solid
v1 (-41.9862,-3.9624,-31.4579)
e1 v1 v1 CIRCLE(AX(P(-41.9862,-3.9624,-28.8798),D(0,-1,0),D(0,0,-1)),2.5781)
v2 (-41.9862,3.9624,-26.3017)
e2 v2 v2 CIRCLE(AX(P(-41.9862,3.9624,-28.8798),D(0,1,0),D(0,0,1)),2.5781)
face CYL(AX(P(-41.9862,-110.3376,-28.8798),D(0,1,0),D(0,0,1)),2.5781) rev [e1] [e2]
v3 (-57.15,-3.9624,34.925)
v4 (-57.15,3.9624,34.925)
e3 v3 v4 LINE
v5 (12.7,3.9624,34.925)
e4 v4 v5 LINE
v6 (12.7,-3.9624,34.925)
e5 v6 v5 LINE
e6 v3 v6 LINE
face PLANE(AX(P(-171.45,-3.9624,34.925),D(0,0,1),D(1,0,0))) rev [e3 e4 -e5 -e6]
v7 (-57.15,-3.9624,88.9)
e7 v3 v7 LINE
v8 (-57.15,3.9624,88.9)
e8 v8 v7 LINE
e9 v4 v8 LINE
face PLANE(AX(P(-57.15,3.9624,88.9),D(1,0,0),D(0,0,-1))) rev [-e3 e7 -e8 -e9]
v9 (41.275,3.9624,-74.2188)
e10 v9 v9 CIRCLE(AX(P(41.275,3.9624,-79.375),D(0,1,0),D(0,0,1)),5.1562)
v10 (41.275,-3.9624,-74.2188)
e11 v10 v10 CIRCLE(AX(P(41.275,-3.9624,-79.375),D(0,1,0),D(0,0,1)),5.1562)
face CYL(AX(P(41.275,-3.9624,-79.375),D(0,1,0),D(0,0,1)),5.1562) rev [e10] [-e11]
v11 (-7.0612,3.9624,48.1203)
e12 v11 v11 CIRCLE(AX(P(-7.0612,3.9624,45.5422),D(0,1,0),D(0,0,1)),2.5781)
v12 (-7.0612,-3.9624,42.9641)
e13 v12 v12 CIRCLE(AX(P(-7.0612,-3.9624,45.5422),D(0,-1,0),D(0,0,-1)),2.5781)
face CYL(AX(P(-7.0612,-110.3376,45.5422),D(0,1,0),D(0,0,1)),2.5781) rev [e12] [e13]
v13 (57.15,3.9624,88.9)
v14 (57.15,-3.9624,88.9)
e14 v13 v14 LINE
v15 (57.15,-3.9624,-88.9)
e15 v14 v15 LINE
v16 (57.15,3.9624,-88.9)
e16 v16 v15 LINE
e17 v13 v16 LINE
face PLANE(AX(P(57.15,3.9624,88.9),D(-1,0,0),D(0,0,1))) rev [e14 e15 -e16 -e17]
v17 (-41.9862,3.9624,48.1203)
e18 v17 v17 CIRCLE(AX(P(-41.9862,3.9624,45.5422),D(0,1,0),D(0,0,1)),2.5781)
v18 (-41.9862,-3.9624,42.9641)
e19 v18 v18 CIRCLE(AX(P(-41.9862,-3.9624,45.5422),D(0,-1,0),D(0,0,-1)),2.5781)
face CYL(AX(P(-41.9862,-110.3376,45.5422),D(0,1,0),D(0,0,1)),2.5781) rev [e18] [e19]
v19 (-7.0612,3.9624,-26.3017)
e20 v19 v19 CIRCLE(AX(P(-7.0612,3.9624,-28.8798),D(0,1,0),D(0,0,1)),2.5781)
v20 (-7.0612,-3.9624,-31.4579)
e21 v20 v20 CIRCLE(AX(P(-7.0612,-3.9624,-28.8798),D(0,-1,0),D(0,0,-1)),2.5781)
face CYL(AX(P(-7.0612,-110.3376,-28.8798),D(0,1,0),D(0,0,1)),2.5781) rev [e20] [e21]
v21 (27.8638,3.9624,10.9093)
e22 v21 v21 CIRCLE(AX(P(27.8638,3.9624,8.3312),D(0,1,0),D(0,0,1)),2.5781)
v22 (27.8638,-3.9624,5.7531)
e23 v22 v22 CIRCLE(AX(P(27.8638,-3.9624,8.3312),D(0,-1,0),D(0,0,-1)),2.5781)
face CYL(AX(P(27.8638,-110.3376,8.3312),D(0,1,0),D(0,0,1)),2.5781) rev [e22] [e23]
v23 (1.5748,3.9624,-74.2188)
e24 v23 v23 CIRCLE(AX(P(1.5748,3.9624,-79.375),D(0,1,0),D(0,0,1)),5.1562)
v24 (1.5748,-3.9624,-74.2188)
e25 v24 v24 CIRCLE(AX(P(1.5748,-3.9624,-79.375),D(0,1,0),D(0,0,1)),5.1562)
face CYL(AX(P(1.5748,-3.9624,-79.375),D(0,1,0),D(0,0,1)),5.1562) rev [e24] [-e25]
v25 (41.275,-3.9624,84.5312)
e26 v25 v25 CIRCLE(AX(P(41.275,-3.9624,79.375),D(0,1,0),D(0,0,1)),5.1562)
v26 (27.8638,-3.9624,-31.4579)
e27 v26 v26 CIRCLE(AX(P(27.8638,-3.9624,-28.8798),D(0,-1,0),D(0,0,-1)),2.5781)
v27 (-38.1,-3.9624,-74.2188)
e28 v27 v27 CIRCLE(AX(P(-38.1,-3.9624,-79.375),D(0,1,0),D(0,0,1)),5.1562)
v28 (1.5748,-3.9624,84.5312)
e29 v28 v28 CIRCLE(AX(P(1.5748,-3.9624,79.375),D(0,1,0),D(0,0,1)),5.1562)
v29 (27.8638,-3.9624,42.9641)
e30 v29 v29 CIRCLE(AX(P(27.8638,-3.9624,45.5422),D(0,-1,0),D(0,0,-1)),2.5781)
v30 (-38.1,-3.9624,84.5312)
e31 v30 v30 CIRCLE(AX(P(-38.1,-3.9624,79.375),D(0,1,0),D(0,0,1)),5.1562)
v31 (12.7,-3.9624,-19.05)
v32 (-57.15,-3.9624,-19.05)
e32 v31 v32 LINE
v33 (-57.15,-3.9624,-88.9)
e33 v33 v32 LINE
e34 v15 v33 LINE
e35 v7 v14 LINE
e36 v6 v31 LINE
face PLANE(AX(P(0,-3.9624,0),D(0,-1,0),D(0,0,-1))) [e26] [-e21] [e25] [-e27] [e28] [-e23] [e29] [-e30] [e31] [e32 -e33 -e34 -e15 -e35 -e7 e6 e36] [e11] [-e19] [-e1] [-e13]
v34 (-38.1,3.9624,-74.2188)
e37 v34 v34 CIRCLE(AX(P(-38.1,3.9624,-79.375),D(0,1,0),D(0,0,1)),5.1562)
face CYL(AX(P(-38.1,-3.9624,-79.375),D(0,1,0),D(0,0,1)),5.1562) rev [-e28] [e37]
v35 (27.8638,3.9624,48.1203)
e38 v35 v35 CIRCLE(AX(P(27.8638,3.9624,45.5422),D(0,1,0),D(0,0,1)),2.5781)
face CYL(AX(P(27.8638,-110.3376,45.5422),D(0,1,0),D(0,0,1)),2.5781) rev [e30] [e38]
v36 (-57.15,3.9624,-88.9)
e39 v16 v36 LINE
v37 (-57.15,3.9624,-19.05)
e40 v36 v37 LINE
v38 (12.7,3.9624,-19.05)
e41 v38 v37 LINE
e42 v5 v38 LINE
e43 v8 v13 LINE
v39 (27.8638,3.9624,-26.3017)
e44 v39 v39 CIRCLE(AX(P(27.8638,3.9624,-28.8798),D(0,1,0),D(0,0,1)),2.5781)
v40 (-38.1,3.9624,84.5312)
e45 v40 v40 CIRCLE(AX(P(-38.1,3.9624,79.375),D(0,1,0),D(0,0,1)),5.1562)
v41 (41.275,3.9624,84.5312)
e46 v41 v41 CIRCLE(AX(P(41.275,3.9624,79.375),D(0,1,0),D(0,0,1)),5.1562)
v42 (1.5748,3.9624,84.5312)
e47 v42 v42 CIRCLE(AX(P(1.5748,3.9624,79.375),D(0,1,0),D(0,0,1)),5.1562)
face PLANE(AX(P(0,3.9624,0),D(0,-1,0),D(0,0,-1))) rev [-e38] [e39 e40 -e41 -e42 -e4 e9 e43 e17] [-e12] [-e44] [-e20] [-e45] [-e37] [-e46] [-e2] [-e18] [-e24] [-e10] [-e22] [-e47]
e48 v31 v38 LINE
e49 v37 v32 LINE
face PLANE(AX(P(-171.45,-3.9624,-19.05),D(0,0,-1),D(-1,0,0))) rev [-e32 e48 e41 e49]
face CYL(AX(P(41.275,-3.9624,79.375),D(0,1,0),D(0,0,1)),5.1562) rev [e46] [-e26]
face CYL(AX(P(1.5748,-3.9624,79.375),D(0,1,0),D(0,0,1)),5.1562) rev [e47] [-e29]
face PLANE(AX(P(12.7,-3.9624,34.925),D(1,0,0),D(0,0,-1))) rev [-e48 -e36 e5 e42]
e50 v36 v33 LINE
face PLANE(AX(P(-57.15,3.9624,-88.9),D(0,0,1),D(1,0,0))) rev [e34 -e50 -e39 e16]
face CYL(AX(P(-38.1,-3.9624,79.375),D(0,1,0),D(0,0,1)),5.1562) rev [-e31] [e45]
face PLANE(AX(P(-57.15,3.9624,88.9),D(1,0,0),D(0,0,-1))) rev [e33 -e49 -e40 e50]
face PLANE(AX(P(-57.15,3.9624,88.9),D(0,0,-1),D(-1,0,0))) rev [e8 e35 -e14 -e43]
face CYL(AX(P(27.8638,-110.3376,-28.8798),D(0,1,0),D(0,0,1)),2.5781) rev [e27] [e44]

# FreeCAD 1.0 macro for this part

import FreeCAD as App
import Part
import Sketcher
Q = App.Units.Quantity

doc = App.newDocument("Part")
params = doc.addObject("Spreadsheet::Sheet", "Params")
for row, (alias, value) in enumerate([
    ("sketch1_height", "7 in"),
    ("sketch1_width", "4.5 in"),
    ("pad1_length", "0.312 in"),
    ("sketch2_width", "7.25 in"),
    ("sketch2_height", "2.125 in"),
    ("sketch3_diameter", "0.406 in"),
    ("sketch4_diameter", "0.406 in"),
    ("sketch5_diameter", "0.406 in"),
    ("sketch6_diameter", "0.203 in"),
    ("pocket5_length", "4.5 in"),
    ("sketch7_diameter", "0.203 in"),
    ("pocket6_length", "4.5 in"),
], start=1):
    params.set(f"A{row}", alias)
    params.set(f"B{row}", "=" + value)
    params.setAlias(f"B{row}", alias)

body = doc.addObject("PartDesign::Body", "Body")

# Sketch on XZ plane
sketch1 = doc.addObject("Sketcher::SketchObject", "Sketch")
body.addObject(sketch1)
sketch1.AttachmentSupport = (doc.XZ_Plane, [""])
sketch1.MapMode = "FlatFace"
sketch1.addGeometry([
    Part.LineSegment(App.Vector(-57.15, -88.9, 0), App.Vector(-57.15, 88.9, 0)),
    Part.LineSegment(App.Vector(-57.15, 88.9, 0), App.Vector(57.15, 88.9, 0)),
    Part.LineSegment(App.Vector(57.15, 88.9, 0), App.Vector(57.15, -88.9, 0)),
    Part.LineSegment(App.Vector(57.15, -88.9, 0), App.Vector(-57.15, -88.9, 0)),
], False)
sketch1.addConstraint([
    Sketcher.Constraint("Coincident", 0, 2, 1, 1),
    Sketcher.Constraint("Coincident", 1, 2, 2, 1),
    Sketcher.Constraint("Coincident", 2, 2, 3, 1),
    Sketcher.Constraint("Coincident", 3, 2, 0, 1),
    Sketcher.Constraint("Vertical", 0),
    Sketcher.Constraint("Horizontal", 1),
    Sketcher.Constraint("Vertical", 2),
    Sketcher.Constraint("Horizontal", 3),
    Sketcher.Constraint("Symmetric", 0, 2, 2, 2, -1, 1),
    Sketcher.Constraint("DistanceY", 0, 1, 0, 2, Q("7 in")),
    Sketcher.Constraint("DistanceX", 1, 1, 1, 2, Q("4.5 in")),
])
sketch1.setExpression("Constraints[9]", "Params.sketch1_height")
sketch1.setExpression("Constraints[10]", "Params.sketch1_width")
pad1 = doc.addObject("PartDesign::Pad", "Pad")
body.addObject(pad1)
pad1.Profile = sketch1
pad1.setExpression("Length", "Params.pad1_length")
pad1.Midplane = True

# Sketch on XZ plane
sketch2 = doc.addObject("Sketcher::SketchObject", "Sketch001")
body.addObject(sketch2)
sketch2.AttachmentSupport = (doc.XZ_Plane, [""])
sketch2.MapMode = "FlatFace"
sketch2.AttachmentOffset = App.Placement(App.Vector(0, 0, -0.156 * 25.4), App.Rotation())
sketch2.addGeometry([
    Part.LineSegment(App.Vector(-171.45, -19.05, 0), App.Vector(-171.45, 34.925, 0)),
    Part.LineSegment(App.Vector(-171.45, 34.925, 0), App.Vector(12.7, 34.925, 0)),
    Part.LineSegment(App.Vector(12.7, 34.925, 0), App.Vector(12.7, -19.05, 0)),
    Part.LineSegment(App.Vector(12.7, -19.05, 0), App.Vector(-171.45, -19.05, 0)),
], False)
sketch2.addConstraint([
    Sketcher.Constraint("Coincident", 0, 2, 1, 1),
    Sketcher.Constraint("Coincident", 1, 2, 2, 1),
    Sketcher.Constraint("Coincident", 2, 2, 3, 1),
    Sketcher.Constraint("Coincident", 3, 2, 0, 1),
    Sketcher.Constraint("Vertical", 0),
    Sketcher.Constraint("Horizontal", 1),
    Sketcher.Constraint("Vertical", 2),
    Sketcher.Constraint("Horizontal", 3),
    Sketcher.Constraint("DistanceX", 1, 1, 1, 2, Q("7.25 in")),
    Sketcher.Constraint("DistanceX", -1, 1, 1, 2, Q("0.5 in")),
    Sketcher.Constraint("DistanceY", 0, 1, 0, 2, Q("2.125 in")),
    Sketcher.Constraint("DistanceY", 2, 2, -1, 1, Q("0.75 in")),
])
sketch2.setExpression("Constraints[8]", "Params.sketch2_width")
sketch2.setExpression("Constraints[10]", "Params.sketch2_height")
pocket1 = doc.addObject("PartDesign::Pocket", "Pocket")
body.addObject(pocket1)
pocket1.Profile = sketch2
pocket1.Type = "ThroughAll"
pocket1.Reversed = True

# Sketch on XZ plane
sketch3 = doc.addObject("Sketcher::SketchObject", "Sketch002")
body.addObject(sketch3)
sketch3.AttachmentSupport = (doc.XZ_Plane, [""])
sketch3.MapMode = "FlatFace"
sketch3.AttachmentOffset = App.Placement(App.Vector(0, 0, -0.156 * 25.4), App.Rotation())
sketch3.addGeometry([
    Part.Circle(App.Vector(-38.1, 79.375, 0), App.Vector(0, 0, 1), 5.1562),
    Part.Circle(App.Vector(-38.1, -79.375, 0), App.Vector(0, 0, 1), 5.1562),
], False)
sketch3.addConstraint([
    Sketcher.Constraint("Equal", 0, 1),
    Sketcher.Constraint("Symmetric", 0, 3, 1, 3, -1),
    Sketcher.Constraint("Diameter", 0, Q("0.406 in")),
    Sketcher.Constraint("DistanceX", 0, 3, -1, 1, Q("1.5 in")),
    Sketcher.Constraint("DistanceY", 1, 3, 0, 3, Q("6.25 in")),
])
sketch3.setExpression("Constraints[2]", "Params.sketch3_diameter")
pocket2 = doc.addObject("PartDesign::Pocket", "Pocket001")
body.addObject(pocket2)
pocket2.Profile = sketch3
pocket2.Type = "ThroughAll"
pocket2.Reversed = True

# Sketch on XZ plane
sketch4 = doc.addObject("Sketcher::SketchObject", "Sketch003")
body.addObject(sketch4)
sketch4.AttachmentSupport = (doc.XZ_Plane, [""])
sketch4.MapMode = "FlatFace"
sketch4.AttachmentOffset = App.Placement(App.Vector(0, 0, -0.156 * 25.4), App.Rotation())
sketch4.addGeometry([
    Part.Circle(App.Vector(1.5748, 79.375, 0), App.Vector(0, 0, 1), 5.1562),
    Part.Circle(App.Vector(1.5748, -79.375, 0), App.Vector(0, 0, 1), 5.1562),
], False)
sketch4.addConstraint([
    Sketcher.Constraint("Equal", 0, 1),
    Sketcher.Constraint("Symmetric", 0, 3, 1, 3, -1),
    Sketcher.Constraint("Diameter", 0, Q("0.406 in")),
    Sketcher.Constraint("DistanceY", 1, 3, 0, 3, Q("6.25 in")),
    Sketcher.Constraint("DistanceX", -1, 1, 0, 3, Q("0.062 in")),
])
sketch4.setExpression("Constraints[2]", "Params.sketch4_diameter")
pocket3 = doc.addObject("PartDesign::Pocket", "Pocket002")
body.addObject(pocket3)
pocket3.Profile = sketch4
pocket3.Type = "ThroughAll"
pocket3.Reversed = True

# Sketch on XZ plane
sketch5 = doc.addObject("Sketcher::SketchObject", "Sketch004")
body.addObject(sketch5)
sketch5.AttachmentSupport = (doc.XZ_Plane, [""])
sketch5.MapMode = "FlatFace"
sketch5.AttachmentOffset = App.Placement(App.Vector(0, 0, -0.156 * 25.4), App.Rotation())
sketch5.addGeometry([
    Part.Circle(App.Vector(41.275, 79.375, 0), App.Vector(0, 0, 1), 5.1562),
    Part.Circle(App.Vector(41.275, -79.375, 0), App.Vector(0, 0, 1), 5.1562),
], False)
sketch5.addConstraint([
    Sketcher.Constraint("Equal", 0, 1),
    Sketcher.Constraint("Symmetric", 0, 3, 1, 3, -1),
    Sketcher.Constraint("Diameter", 0, Q("0.406 in")),
    Sketcher.Constraint("DistanceY", 1, 3, 0, 3, Q("6.25 in")),
    Sketcher.Constraint("DistanceX", -1, 1, 0, 3, Q("1.625 in")),
])
sketch5.setExpression("Constraints[2]", "Params.sketch5_diameter")
pocket4 = doc.addObject("PartDesign::Pocket", "Pocket003")
body.addObject(pocket4)
pocket4.Profile = sketch5
pocket4.Type = "ThroughAll"
pocket4.Reversed = True

# Sketch on XZ plane
sketch6 = doc.addObject("Sketcher::SketchObject", "Sketch005")
body.addObject(sketch6)
sketch6.AttachmentSupport = (doc.XZ_Plane, [""])
sketch6.MapMode = "FlatFace"
sketch6.AttachmentOffset = App.Placement(App.Vector(0, 0, -0.156 * 25.4), App.Rotation())
sketch6.addGeometry([
    Part.Circle(App.Vector(-41.9862, 45.5422, 0), App.Vector(0, 0, 1), 2.5781),  # 0
    Part.Circle(App.Vector(-7.0612, 45.5422, 0), App.Vector(0, 0, 1), 2.5781),  # 1
    Part.Circle(App.Vector(27.8638, 45.5422, 0), App.Vector(0, 0, 1), 2.5781),  # 2
    Part.Circle(App.Vector(-41.9862, -28.8798, 0), App.Vector(0, 0, 1), 2.5781),  # 3
    Part.Circle(App.Vector(-7.0612, -28.8798, 0), App.Vector(0, 0, 1), 2.5781),  # 4
    Part.Circle(App.Vector(27.8638, -28.8798, 0), App.Vector(0, 0, 1), 2.5781),  # 5
], False)
sketch6.addConstraint([
    Sketcher.Constraint("Equal", 0, 1),
    Sketcher.Constraint("Equal", 1, 2),
    Sketcher.Constraint("Equal", 2, 3),
    Sketcher.Constraint("Equal", 3, 4),
    Sketcher.Constraint("Equal", 4, 5),
    Sketcher.Constraint("Horizontal", 0, 3, 1, 3),
    Sketcher.Constraint("Horizontal", 1, 3, 2, 3),
    Sketcher.Constraint("Horizontal", 3, 3, 4, 3),
    Sketcher.Constraint("Horizontal", 4, 3, 5, 3),
    Sketcher.Constraint("Vertical", 0, 3, 3, 3),
    Sketcher.Constraint("Vertical", 1, 3, 4, 3),
    Sketcher.Constraint("Vertical", 2, 3, 5, 3),
    Sketcher.Constraint("Diameter", 0, Q("0.203 in")),
    Sketcher.Constraint("DistanceX", 0, 3, 2, 3, Q("2.75 in")),
    Sketcher.Constraint("DistanceY", 3, 3, 0, 3, Q("2.93 in")),
    Sketcher.Constraint("DistanceX", 0, 3, -1, 1, Q("1.653 in")),
    Sketcher.Constraint("DistanceY", -1, 1, 0, 3, Q("1.793 in")),
    Sketcher.Constraint("DistanceX", 1, 3, -1, 1, Q("0.278 in")),
])
sketch6.setExpression("Constraints[12]", "Params.sketch6_diameter")
pocket5 = doc.addObject("PartDesign::Pocket", "Pocket004")
body.addObject(pocket5)
pocket5.Profile = sketch6
pocket5.setExpression("Length", "Params.pocket5_length")
pocket5.Reversed = True

# Sketch on XZ plane
sketch7 = doc.addObject("Sketcher::SketchObject", "Sketch006")
body.addObject(sketch7)
sketch7.AttachmentSupport = (doc.XZ_Plane, [""])
sketch7.MapMode = "FlatFace"
sketch7.AttachmentOffset = App.Placement(App.Vector(0, 0, -0.156 * 25.4), App.Rotation())
sketch7.addGeometry(Part.Circle(App.Vector(27.8638, 8.3312, 0), App.Vector(0, 0, 1), 2.5781), False)
sketch7.addConstraint([
    Sketcher.Constraint("Diameter", 0, Q("0.203 in")),
    Sketcher.Constraint("DistanceX", -1, 1, 0, 3, Q("1.097 in")),
    Sketcher.Constraint("DistanceY", -1, 1, 0, 3, Q("0.328 in")),
])
sketch7.setExpression("Constraints[0]", "Params.sketch7_diameter")
pocket6 = doc.addObject("PartDesign::Pocket", "Pocket005")
body.addObject(pocket6)
pocket6.Profile = sketch7
pocket6.setExpression("Length", "Params.pocket6_length")
pocket6.Reversed = True

doc.recompute()
